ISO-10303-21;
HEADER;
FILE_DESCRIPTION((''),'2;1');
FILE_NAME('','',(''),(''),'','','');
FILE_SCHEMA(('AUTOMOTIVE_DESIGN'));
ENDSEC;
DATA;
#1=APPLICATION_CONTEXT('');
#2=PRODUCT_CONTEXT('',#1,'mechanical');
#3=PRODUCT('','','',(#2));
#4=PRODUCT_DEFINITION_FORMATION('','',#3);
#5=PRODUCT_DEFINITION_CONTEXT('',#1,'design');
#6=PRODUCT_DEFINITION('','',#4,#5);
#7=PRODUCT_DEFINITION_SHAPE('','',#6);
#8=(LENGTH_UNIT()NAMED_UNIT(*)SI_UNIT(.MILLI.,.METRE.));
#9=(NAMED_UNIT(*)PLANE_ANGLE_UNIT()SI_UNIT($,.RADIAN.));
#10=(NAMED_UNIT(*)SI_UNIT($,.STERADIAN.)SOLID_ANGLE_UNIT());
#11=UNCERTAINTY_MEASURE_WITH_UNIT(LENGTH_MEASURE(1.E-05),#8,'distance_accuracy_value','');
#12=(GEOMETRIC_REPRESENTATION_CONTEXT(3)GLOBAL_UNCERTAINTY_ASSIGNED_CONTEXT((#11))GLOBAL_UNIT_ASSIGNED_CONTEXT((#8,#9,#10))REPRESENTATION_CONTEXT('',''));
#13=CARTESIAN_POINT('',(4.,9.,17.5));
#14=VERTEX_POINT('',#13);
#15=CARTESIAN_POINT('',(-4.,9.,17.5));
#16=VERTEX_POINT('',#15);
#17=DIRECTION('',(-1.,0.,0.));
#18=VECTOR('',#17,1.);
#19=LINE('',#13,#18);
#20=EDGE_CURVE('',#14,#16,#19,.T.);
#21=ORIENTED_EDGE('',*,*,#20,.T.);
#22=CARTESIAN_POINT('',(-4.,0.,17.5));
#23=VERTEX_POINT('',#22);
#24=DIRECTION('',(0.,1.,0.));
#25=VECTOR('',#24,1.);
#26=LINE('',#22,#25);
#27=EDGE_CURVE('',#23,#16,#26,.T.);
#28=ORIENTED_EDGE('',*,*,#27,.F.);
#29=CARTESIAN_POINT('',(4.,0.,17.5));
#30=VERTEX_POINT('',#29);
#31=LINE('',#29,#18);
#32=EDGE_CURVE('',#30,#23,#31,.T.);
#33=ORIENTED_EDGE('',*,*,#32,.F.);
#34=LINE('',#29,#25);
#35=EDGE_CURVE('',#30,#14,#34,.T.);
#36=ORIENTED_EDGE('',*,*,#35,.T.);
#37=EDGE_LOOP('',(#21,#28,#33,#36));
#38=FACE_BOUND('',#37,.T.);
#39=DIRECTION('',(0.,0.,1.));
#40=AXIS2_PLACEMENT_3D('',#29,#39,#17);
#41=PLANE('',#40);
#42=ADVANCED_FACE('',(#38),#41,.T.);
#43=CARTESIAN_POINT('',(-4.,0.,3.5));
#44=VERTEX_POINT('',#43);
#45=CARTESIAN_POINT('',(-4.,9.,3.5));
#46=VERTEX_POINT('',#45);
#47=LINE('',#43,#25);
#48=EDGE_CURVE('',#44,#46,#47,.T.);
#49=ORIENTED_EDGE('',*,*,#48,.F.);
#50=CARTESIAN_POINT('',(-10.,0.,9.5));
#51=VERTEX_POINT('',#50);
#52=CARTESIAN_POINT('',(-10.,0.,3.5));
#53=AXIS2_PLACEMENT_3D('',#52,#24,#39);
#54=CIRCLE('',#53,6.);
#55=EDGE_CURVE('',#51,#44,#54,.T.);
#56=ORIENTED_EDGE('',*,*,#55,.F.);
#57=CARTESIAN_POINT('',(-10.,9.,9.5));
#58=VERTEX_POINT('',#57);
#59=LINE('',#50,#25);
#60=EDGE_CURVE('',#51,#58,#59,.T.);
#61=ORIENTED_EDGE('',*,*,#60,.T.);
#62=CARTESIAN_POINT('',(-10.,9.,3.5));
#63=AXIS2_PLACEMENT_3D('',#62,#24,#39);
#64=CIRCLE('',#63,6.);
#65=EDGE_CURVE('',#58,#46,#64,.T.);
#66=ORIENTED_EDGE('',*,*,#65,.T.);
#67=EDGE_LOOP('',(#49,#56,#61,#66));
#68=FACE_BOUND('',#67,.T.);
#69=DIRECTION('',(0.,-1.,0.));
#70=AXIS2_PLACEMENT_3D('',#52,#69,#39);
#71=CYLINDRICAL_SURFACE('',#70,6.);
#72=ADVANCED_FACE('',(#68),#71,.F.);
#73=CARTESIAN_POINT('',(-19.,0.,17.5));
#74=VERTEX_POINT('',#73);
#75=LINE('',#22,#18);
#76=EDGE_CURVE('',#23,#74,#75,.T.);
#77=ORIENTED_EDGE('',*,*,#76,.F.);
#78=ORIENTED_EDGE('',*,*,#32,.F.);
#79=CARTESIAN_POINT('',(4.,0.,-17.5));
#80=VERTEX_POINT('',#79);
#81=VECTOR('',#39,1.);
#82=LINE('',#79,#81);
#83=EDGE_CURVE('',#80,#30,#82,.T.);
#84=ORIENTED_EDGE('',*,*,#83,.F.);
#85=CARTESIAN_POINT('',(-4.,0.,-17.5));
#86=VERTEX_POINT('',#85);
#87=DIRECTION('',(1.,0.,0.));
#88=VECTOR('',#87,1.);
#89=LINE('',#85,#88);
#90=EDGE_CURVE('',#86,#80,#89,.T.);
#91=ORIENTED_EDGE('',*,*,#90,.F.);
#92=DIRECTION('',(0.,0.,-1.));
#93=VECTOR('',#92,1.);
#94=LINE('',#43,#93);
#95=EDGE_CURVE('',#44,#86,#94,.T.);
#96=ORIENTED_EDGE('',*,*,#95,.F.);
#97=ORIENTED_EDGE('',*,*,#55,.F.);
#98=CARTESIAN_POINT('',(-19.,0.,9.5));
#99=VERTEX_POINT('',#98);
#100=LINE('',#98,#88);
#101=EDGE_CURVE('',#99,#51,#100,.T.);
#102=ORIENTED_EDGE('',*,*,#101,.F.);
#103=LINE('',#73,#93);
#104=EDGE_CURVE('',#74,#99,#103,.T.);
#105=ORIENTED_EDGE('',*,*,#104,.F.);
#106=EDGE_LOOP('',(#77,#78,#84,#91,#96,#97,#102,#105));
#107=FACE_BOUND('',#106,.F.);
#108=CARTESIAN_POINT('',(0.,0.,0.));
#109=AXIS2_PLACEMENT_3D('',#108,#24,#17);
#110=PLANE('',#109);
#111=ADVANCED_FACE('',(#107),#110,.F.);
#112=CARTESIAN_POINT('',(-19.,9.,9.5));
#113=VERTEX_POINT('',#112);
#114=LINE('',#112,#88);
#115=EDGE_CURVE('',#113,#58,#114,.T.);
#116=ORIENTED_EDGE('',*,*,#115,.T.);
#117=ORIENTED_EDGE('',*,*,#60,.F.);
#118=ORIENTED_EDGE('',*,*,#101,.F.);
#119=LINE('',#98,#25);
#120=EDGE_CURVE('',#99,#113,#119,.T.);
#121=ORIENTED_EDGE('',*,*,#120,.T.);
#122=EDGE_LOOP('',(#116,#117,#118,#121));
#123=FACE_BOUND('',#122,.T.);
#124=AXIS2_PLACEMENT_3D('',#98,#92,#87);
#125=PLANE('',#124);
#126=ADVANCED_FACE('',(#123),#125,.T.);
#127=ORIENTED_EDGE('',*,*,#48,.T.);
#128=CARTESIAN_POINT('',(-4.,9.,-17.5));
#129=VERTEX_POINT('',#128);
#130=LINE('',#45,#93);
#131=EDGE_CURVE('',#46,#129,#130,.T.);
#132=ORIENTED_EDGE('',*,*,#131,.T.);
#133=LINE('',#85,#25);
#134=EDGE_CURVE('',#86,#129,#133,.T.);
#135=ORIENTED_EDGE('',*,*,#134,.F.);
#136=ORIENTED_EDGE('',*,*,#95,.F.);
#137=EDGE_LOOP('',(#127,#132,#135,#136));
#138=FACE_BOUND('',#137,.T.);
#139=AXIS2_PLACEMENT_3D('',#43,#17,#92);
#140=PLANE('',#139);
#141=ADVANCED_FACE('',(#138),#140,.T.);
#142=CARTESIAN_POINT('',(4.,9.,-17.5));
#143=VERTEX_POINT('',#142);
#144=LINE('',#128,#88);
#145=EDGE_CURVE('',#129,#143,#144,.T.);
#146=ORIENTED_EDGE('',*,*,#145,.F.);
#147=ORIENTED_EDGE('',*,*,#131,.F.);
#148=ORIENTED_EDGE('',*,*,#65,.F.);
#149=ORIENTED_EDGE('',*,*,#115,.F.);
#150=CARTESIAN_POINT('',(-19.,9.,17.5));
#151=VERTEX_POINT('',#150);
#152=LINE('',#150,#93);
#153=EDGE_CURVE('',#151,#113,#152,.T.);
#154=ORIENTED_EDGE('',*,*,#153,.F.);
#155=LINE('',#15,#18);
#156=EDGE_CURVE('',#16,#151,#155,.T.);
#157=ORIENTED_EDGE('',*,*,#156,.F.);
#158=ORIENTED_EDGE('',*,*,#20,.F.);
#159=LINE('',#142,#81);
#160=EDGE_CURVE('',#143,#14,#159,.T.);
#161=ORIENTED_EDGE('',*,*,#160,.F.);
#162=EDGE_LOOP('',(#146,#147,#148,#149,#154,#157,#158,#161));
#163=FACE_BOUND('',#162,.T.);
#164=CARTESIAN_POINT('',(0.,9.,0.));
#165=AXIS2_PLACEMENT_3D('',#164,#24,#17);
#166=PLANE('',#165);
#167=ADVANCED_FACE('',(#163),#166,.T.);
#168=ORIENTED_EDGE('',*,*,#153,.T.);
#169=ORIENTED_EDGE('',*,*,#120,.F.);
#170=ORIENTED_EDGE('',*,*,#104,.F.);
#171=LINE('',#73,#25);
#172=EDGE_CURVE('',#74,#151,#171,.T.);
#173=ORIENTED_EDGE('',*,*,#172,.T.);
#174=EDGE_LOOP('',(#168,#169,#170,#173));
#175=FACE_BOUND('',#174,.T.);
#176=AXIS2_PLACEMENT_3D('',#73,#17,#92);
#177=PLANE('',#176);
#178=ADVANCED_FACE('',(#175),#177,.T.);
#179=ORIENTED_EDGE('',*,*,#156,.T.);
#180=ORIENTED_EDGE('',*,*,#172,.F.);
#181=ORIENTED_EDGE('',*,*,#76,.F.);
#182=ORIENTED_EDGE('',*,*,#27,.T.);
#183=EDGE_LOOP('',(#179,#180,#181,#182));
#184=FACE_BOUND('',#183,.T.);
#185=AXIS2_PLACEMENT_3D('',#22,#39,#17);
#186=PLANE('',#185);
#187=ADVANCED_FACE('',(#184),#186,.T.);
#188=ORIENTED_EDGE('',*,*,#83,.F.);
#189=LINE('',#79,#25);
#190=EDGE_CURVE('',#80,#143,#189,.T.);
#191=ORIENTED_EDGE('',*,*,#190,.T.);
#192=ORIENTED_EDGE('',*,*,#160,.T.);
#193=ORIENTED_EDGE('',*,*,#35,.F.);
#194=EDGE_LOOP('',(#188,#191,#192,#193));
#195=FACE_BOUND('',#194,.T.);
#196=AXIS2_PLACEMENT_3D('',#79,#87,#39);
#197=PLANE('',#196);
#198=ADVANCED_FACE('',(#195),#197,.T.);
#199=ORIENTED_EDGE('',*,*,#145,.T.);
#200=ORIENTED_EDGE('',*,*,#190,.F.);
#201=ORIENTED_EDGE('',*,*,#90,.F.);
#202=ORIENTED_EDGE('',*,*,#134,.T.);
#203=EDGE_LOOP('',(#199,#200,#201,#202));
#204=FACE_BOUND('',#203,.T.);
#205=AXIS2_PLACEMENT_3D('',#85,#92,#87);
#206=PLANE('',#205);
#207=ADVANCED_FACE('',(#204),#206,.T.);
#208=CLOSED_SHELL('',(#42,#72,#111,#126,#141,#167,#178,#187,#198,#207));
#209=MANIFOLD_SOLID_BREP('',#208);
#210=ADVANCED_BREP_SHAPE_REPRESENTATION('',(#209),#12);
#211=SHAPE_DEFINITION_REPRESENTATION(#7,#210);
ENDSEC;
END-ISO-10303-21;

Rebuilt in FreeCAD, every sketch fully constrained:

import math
import FreeCAD as App
import Part
import Sketcher

doc = App.newDocument("Part")
params = doc.addObject("Spreadsheet::Sheet", "Params")
for row, (alias, value) in enumerate([
    ("sketch1_radius", "6 mm"),
    ("sketch1_width", "8 mm"),
    ("sketch1_height", "35 mm"),
    ("pad1_length", "9 mm"),
], start=1):
    params.set(f"A{row}", alias)
    params.set(f"B{row}", "=" + value)
    params.setAlias(f"B{row}", alias)

body = doc.addObject("PartDesign::Body", "Body")

sketch1 = body.newObject("Sketcher::SketchObject", "Sketch")
sketch1.AttachmentSupport = (doc.getObject("XZ_Plane"), [""])
sketch1.MapMode = "FlatFace"
sketch1.addGeometry([
    Part.LineSegment(App.Vector(-19, 18, 0), App.Vector(4, 18, 0)),
    Part.LineSegment(App.Vector(4, 18, 0), App.Vector(4, -18, 0)),
    Part.LineSegment(App.Vector(4, -18, 0), App.Vector(-4, -18, 0)),
    Part.LineSegment(App.Vector(-4, -18, 0), App.Vector(-4, 4, 0)),
    Part.ArcOfCircle(Part.Circle(App.Vector(-10, 4, 0), App.Vector(0, 0, 1), 6), math.radians(0), math.radians(90)),
    Part.LineSegment(App.Vector(-10, 10, 0), App.Vector(-19, 10, 0)),
    Part.LineSegment(App.Vector(-19, 10, 0), App.Vector(-19, 18, 0)),
], False)
sketch1.addConstraint([
    Sketcher.Constraint("Coincident", 0, 2, 1, 1),
    Sketcher.Constraint("Coincident", 1, 2, 2, 1),
    Sketcher.Constraint("Coincident", 2, 2, 3, 1),
    Sketcher.Constraint("Tangent", 3, 2, 4, 1),
    Sketcher.Constraint("Tangent", 4, 2, 5, 1),
    Sketcher.Constraint("Coincident", 5, 2, 6, 1),
    Sketcher.Constraint("Coincident", 6, 2, 0, 1),
    Sketcher.Constraint("Horizontal", 0),
    Sketcher.Constraint("Vertical", 1),
    Sketcher.Constraint("Horizontal", 2),
    Sketcher.Constraint("Vertical", 3),
    Sketcher.Constraint("Horizontal", 5),
    Sketcher.Constraint("Vertical", 6),
    Sketcher.Constraint("Symmetric", 0, 2, 2, 2, -1, 1),
    Sketcher.Constraint("Equal", 2, 6),
    Sketcher.Constraint("Radius", 4, 6.0),
    Sketcher.Constraint("DistanceX", 2, 2, 2, 1, 8.0),
    Sketcher.Constraint("DistanceY", 1, 2, 1, 1, 35.0),
    Sketcher.Constraint("DistanceX", 5, 2, 3, 2, 15.0),
])
sketch1.setExpression("Constraints[15]", "Params.sketch1_radius")
sketch1.setExpression("Constraints[16]", "Params.sketch1_width")
sketch1.setExpression("Constraints[17]", "Params.sketch1_height")
pad1 = body.newObject("PartDesign::Pad", "Pad")
pad1.Profile = sketch1
pad1.setExpression("Length", "Params.pad1_length")
pad1.Reversed = True

doc.recompute()
